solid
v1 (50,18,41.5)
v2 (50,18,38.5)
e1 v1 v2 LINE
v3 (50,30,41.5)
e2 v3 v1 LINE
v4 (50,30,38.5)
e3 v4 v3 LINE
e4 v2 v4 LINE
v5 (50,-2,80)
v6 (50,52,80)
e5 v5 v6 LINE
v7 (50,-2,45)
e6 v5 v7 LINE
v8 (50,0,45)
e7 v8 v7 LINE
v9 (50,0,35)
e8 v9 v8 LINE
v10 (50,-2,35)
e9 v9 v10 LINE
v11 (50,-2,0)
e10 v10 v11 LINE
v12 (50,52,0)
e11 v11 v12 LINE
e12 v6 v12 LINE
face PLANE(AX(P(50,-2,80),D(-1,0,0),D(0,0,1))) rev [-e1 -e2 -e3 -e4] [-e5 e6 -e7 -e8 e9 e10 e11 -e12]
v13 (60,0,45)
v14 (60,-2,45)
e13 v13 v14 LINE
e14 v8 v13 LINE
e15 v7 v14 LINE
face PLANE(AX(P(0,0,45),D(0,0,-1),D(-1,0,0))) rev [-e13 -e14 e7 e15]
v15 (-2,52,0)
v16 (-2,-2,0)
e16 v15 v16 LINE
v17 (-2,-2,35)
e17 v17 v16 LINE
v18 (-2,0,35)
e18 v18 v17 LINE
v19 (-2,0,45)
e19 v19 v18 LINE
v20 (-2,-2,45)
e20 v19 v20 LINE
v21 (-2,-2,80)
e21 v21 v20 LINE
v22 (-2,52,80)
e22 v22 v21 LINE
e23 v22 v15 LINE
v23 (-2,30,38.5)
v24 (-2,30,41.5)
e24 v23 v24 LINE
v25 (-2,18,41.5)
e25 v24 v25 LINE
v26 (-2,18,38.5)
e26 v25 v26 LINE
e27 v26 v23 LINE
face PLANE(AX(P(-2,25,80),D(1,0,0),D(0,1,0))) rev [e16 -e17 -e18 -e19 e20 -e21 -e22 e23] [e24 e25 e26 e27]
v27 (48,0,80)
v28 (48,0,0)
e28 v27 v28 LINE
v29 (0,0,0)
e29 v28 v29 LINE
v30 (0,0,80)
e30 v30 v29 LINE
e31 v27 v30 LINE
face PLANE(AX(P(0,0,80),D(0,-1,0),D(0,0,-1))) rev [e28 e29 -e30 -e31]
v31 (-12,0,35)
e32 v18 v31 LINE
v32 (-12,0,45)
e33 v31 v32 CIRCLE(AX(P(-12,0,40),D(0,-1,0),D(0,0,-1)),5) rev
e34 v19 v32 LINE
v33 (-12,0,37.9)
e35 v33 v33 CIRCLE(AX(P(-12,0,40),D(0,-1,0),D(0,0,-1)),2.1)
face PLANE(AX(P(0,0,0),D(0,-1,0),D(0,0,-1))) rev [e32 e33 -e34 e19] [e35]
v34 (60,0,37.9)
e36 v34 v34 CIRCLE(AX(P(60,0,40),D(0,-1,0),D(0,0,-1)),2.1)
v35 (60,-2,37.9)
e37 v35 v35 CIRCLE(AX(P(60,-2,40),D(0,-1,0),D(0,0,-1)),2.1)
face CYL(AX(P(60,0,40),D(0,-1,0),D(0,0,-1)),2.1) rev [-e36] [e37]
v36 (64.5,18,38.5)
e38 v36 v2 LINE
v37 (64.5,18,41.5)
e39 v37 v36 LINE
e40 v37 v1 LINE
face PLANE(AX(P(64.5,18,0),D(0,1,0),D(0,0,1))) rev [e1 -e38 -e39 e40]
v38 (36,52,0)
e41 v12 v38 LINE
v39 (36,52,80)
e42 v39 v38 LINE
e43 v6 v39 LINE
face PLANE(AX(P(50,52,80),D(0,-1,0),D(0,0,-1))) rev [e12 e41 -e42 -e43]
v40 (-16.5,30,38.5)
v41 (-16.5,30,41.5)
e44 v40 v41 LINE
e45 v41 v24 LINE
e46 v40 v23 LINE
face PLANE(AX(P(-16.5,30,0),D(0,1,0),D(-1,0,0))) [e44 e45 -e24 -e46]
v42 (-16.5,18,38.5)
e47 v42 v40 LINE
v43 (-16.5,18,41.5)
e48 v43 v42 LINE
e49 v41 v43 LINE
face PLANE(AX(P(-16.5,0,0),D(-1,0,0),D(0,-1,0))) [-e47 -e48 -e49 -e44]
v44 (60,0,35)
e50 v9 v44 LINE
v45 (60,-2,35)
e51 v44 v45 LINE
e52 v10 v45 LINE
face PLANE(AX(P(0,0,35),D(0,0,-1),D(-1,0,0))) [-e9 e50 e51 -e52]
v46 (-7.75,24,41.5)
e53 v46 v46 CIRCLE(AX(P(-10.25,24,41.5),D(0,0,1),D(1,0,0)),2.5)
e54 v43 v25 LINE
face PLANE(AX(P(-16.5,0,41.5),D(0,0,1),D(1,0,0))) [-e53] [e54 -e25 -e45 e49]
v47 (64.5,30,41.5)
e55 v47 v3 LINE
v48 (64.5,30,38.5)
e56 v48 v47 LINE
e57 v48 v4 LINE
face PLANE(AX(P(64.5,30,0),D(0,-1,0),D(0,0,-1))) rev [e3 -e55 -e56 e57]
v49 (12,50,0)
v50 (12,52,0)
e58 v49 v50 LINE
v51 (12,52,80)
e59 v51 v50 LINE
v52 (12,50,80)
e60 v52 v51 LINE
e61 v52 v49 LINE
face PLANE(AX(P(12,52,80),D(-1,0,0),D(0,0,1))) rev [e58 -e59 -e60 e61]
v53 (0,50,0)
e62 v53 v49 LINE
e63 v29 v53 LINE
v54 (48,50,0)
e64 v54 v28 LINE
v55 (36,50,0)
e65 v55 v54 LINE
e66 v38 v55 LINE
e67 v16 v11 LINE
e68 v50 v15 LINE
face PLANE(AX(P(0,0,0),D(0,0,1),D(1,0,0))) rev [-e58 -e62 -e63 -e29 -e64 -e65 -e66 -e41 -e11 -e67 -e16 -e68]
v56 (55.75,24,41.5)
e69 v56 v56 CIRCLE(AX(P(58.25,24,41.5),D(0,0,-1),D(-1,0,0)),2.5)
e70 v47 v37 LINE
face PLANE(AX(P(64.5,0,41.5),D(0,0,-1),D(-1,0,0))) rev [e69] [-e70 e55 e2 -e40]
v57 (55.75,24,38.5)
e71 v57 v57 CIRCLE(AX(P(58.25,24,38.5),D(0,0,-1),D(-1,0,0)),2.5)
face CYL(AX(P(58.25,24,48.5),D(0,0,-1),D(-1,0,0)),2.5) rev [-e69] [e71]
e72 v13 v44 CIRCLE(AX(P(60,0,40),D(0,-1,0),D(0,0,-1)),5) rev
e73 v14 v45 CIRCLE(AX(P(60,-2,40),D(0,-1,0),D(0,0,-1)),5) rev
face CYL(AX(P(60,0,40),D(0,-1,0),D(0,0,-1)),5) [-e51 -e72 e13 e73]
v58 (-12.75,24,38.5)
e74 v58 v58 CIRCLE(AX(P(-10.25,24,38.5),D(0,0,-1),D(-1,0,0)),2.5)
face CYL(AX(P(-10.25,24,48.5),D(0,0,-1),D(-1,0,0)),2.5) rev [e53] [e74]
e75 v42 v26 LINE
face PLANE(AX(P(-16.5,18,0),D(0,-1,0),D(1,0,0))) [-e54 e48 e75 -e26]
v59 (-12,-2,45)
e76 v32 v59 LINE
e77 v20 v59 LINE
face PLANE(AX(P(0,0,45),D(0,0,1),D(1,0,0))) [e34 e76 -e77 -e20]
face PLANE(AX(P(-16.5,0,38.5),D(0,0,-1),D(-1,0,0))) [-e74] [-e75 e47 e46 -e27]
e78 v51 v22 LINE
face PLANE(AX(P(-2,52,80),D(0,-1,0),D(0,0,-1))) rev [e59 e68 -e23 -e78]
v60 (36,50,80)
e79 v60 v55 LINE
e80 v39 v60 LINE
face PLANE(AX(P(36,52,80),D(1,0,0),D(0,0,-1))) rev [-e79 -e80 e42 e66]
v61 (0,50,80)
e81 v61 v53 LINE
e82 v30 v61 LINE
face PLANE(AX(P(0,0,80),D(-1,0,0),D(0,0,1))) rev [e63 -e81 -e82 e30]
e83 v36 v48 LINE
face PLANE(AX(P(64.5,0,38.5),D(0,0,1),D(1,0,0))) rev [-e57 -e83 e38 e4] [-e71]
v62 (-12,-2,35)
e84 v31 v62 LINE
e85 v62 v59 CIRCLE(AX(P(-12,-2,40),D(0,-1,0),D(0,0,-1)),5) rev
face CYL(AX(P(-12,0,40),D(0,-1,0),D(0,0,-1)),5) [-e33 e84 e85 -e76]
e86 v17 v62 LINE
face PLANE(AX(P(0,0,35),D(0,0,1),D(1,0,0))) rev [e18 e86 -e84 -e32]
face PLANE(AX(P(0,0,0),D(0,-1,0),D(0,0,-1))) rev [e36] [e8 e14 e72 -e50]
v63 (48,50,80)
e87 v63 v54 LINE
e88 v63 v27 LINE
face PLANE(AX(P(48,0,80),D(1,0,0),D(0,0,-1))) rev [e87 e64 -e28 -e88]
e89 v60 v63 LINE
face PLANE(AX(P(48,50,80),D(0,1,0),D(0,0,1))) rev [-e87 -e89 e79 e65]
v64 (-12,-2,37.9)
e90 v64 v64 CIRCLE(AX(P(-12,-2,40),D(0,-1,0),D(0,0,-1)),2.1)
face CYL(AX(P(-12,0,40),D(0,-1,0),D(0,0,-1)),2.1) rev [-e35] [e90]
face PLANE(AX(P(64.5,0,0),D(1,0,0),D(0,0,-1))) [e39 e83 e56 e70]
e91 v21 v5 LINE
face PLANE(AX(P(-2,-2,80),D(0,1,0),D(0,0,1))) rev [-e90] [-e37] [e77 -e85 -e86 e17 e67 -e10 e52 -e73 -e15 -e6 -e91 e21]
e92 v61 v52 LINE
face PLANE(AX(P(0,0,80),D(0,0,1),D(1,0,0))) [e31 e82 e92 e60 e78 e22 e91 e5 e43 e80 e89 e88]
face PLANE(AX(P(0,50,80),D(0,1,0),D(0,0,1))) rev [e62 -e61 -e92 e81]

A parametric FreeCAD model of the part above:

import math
import FreeCAD as App
import Part
import Sketcher
from FreeCAD import Vector

doc = App.newDocument("Part")
body = doc.addObject("PartDesign::Body", "Body")

# Sketch on XY plane
sketch1 = body.newObject("Sketcher::SketchObject", "Sketch")
sketch1.AttachmentSupport = (doc.getObject("XY_Plane"), [""])
sketch1.MapMode = "FlatFace"
sketch1.addGeometry(Part.LineSegment(Vector(0, 0, 0), Vector(0, 50, 0)), False)
sketch1.addGeometry(Part.LineSegment(Vector(0, 50, 0), Vector(12, 50, 0)), False)
sketch1.addGeometry(Part.LineSegment(Vector(12, 50, 0), Vector(12, 52, 0)), False)
sketch1.addGeometry(Part.LineSegment(Vector(12, 52, 0), Vector(-2, 52, 0)), False)
sketch1.addGeometry(Part.LineSegment(Vector(-2, 52, 0), Vector(-2, -2, 0)), False)
sketch1.addGeometry(Part.LineSegment(Vector(-2, -2, 0), Vector(50, -2, 0)), False)
sketch1.addGeometry(Part.LineSegment(Vector(50, -2, 0), Vector(50, 52, 0)), False)
sketch1.addGeometry(Part.LineSegment(Vector(50, 52, 0), Vector(36, 52, 0)), False)
sketch1.addGeometry(Part.LineSegment(Vector(36, 52, 0), Vector(36, 50, 0)), False)
sketch1.addGeometry(Part.LineSegment(Vector(36, 50, 0), Vector(48, 50, 0)), False)
sketch1.addGeometry(Part.LineSegment(Vector(48, 50, 0), Vector(48, 0, 0)), False)
sketch1.addGeometry(Part.LineSegment(Vector(48, 0, 0), Vector(0, 0, 0)), False)
sketch1.addConstraint(Sketcher.Constraint("Coincident", 0, 2, 1, 1))
sketch1.addConstraint(Sketcher.Constraint("Coincident", 1, 2, 2, 1))
sketch1.addConstraint(Sketcher.Constraint("Coincident", 2, 2, 3, 1))
sketch1.addConstraint(Sketcher.Constraint("Coincident", 3, 2, 4, 1))
sketch1.addConstraint(Sketcher.Constraint("Coincident", 4, 2, 5, 1))
sketch1.addConstraint(Sketcher.Constraint("Coincident", 5, 2, 6, 1))
sketch1.addConstraint(Sketcher.Constraint("Coincident", 6, 2, 7, 1))
sketch1.addConstraint(Sketcher.Constraint("Coincident", 7, 2, 8, 1))
sketch1.addConstraint(Sketcher.Constraint("Coincident", 8, 2, 9, 1))
sketch1.addConstraint(Sketcher.Constraint("Coincident", 9, 2, 10, 1))
sketch1.addConstraint(Sketcher.Constraint("Coincident", 10, 2, 11, 1))
sketch1.addConstraint(Sketcher.Constraint("Coincident", 11, 2, 0, 1))
sketch1.addConstraint(Sketcher.Constraint("Vertical", 0))
sketch1.addConstraint(Sketcher.Constraint("Horizontal", 1))
sketch1.addConstraint(Sketcher.Constraint("Vertical", 2))
sketch1.addConstraint(Sketcher.Constraint("Horizontal", 3))
sketch1.addConstraint(Sketcher.Constraint("Vertical", 4))
sketch1.addConstraint(Sketcher.Constraint("Horizontal", 5))
sketch1.addConstraint(Sketcher.Constraint("Vertical", 6))
sketch1.addConstraint(Sketcher.Constraint("Horizontal", 7))
sketch1.addConstraint(Sketcher.Constraint("Vertical", 8))
sketch1.addConstraint(Sketcher.Constraint("Horizontal", 9))
sketch1.addConstraint(Sketcher.Constraint("Vertical", 10))
sketch1.addConstraint(Sketcher.Constraint("Horizontal", 11))
sketch1.addConstraint(Sketcher.Constraint("Coincident", 11, 2, -1, 1))
sketch1.addConstraint(Sketcher.Constraint("Horizontal", 3, 2, 6, 2))
sketch1.addConstraint(Sketcher.Constraint("Horizontal", 1, 2, 8, 2))
sketch1.addConstraint(Sketcher.Constraint("Equal", 3, 7))
sketch1.addConstraint(Sketcher.Constraint("Equal", 1, 9))
sketch1.addConstraint(Sketcher.Constraint("DistanceX", 1, 1, 1, 2, 12.0))
sketch1.addConstraint(Sketcher.Constraint("DistanceX", 3, 2, 3, 1, 14.0))
sketch1.addConstraint(Sketcher.Constraint("DistanceX", 5, 1, 5, 2, 52.0))
sketch1.addConstraint(Sketcher.Constraint("DistanceY", 0, 1, 0, 2, 50.0))
sketch1.addConstraint(Sketcher.Constraint("DistanceY", 2, 1, 2, 2, 2.0))
sketch1.addConstraint(Sketcher.Constraint("DistanceY", 4, 2, 4, 1, 54.0))
pad1 = body.newObject("PartDesign::Pad", "Pad")
pad1.Profile = sketch1
pad1.Length = 80

# Sketch on XZ plane
sketch2 = body.newObject("Sketcher::SketchObject", "Sketch001")
sketch2.AttachmentSupport = (doc.getObject("XZ_Plane"), [""])
sketch2.MapMode = "FlatFace"
sketch2.AttachmentOffset = App.Placement(Vector(0, 0, 2), App.Rotation())
sketch2.addGeometry(Part.LineSegment(Vector(60, 45, 0), Vector(50, 45, 0)), False)
sketch2.addGeometry(Part.LineSegment(Vector(50, 45, 0), Vector(50, 35, 0)), False)
sketch2.addGeometry(Part.LineSegment(Vector(50, 35, 0), Vector(60, 35, 0)), False)
sketch2.addGeometry(Part.ArcOfCircle(Part.Circle(Vector(60, 40, 0), Vector(0, 0, 1), 5), math.radians(-90), math.radians(90)), False)
sketch2.addGeometry(Part.Circle(Vector(60, 40, 0), Vector(0, 0, 1), 2.1), False)
sketch2.addGeometry(Part.LineSegment(Vector(-2, 35, 0), Vector(-2, 45, 0)), False)
sketch2.addGeometry(Part.LineSegment(Vector(-2, 45, 0), Vector(-12, 45, 0)), False)
sketch2.addGeometry(Part.ArcOfCircle(Part.Circle(Vector(-12, 40, 0), Vector(0, 0, 1), 5), math.radians(90), math.radians(270)), False)
sketch2.addGeometry(Part.LineSegment(Vector(-12, 35, 0), Vector(-2, 35, 0)), False)
sketch2.addGeometry(Part.Circle(Vector(-12, 40, 0), Vector(0, 0, 1), 2.1), False)
sketch2.addConstraint(Sketcher.Constraint("Coincident", 0, 2, 1, 1))
sketch2.addConstraint(Sketcher.Constraint("Coincident", 1, 2, 2, 1))
sketch2.addConstraint(Sketcher.Constraint("Tangent", 2, 2, 3, 1))
sketch2.addConstraint(Sketcher.Constraint("Tangent", 3, 2, 0, 1))
sketch2.addConstraint(Sketcher.Constraint("Coincident", 5, 2, 6, 1))
sketch2.addConstraint(Sketcher.Constraint("Tangent", 6, 2, 7, 1))
sketch2.addConstraint(Sketcher.Constraint("Tangent", 7, 2, 8, 1))
sketch2.addConstraint(Sketcher.Constraint("Coincident", 8, 2, 5, 1))
sketch2.addConstraint(Sketcher.Constraint("Horizontal", 0))
sketch2.addConstraint(Sketcher.Constraint("Vertical", 1))
sketch2.addConstraint(Sketcher.Constraint("Horizontal", 2))
sketch2.addConstraint(Sketcher.Constraint("Vertical", 5))
sketch2.addConstraint(Sketcher.Constraint("Horizontal", 6))
sketch2.addConstraint(Sketcher.Constraint("Horizontal", 8))
sketch2.addConstraint(Sketcher.Constraint("Coincident", 4, 3, 3, 3))
sketch2.addConstraint(Sketcher.Constraint("Coincident", 9, 3, 7, 3))
sketch2.addConstraint(Sketcher.Constraint("Equal", 3, 7))
sketch2.addConstraint(Sketcher.Constraint("Equal", 4, 9))
sketch2.addConstraint(Sketcher.Constraint("Horizontal", 4, 3, 7, 3))
sketch2.addConstraint(Sketcher.Constraint("Equal", 2, 6))
sketch2.addConstraint(Sketcher.Constraint("Equal", 8, 1))
sketch2.addConstraint(Sketcher.Constraint("Radius", 3, 5.0))
sketch2.addConstraint(Sketcher.Constraint("Diameter", 4, 4.2))
sketch2.addConstraint(Sketcher.Constraint("DistanceX", -1, 1, 3, 3, 60.0))
sketch2.addConstraint(Sketcher.Constraint("DistanceY", -1, 1, 3, 3, 40.0))
sketch2.addConstraint(Sketcher.Constraint("DistanceX", 7, 3, -1, 1, 12.0))
pad2 = body.newObject("PartDesign::Pad", "Pad001")
pad2.Profile = sketch2
pad2.Length = 2
pad2.Reversed = True

# Sketch on YZ plane
sketch3 = body.newObject("Sketcher::SketchObject", "Sketch002")
sketch3.AttachmentSupport = (doc.getObject("YZ_Plane"), [""])
sketch3.MapMode = "FlatFace"
sketch3.AttachmentOffset = App.Placement(Vector(0, 0, -2), App.Rotation())
sketch3.addGeometry(Part.LineSegment(Vector(30, 38.5, 0), Vector(18, 38.5, 0)), False)
sketch3.addGeometry(Part.LineSegment(Vector(18, 38.5, 0), Vector(18, 41.5, 0)), False)
sketch3.addGeometry(Part.LineSegment(Vector(18, 41.5, 0), Vector(30, 41.5, 0)), False)
sketch3.addGeometry(Part.LineSegment(Vector(30, 41.5, 0), Vector(30, 38.5, 0)), False)
sketch3.addConstraint(Sketcher.Constraint("Coincident", 0, 2, 1, 1))
sketch3.addConstraint(Sketcher.Constraint("Coincident", 1, 2, 2, 1))
sketch3.addConstraint(Sketcher.Constraint("Coincident", 2, 2, 3, 1))
sketch3.addConstraint(Sketcher.Constraint("Coincident", 3, 2, 0, 1))
sketch3.addConstraint(Sketcher.Constraint("Horizontal", 0))
sketch3.addConstraint(Sketcher.Constraint("Vertical", 1))
sketch3.addConstraint(Sketcher.Constraint("Horizontal", 2))
sketch3.addConstraint(Sketcher.Constraint("Vertical", 3))
sketch3.addConstraint(Sketcher.Constraint("DistanceX", 0, 2, 0, 1, 12.0))
sketch3.addConstraint(Sketcher.Constraint("DistanceY", 1, 1, 1, 2, 3.0))
sketch3.addConstraint(Sketcher.Constraint("DistanceX", -1, 1, 0, 2, 18.0))
sketch3.addConstraint(Sketcher.Constraint("DistanceY", -1, 1, 0, 2, 38.5))
pad3 = body.newObject("PartDesign::Pad", "Pad002")
pad3.Profile = sketch3
pad3.Length = 14.5
pad3.Reversed = True

# Sketch on YZ plane
sketch4 = body.newObject("Sketcher::SketchObject", "Sketch003")
sketch4.AttachmentSupport = (doc.getObject("YZ_Plane"), [""])
sketch4.MapMode = "FlatFace"
sketch4.AttachmentOffset = App.Placement(Vector(0, 0, 50), App.Rotation())
sketch4.addGeometry(Part.LineSegment(Vector(30, 41.5, 0), Vector(18, 41.5, 0)), False)
sketch4.addGeometry(Part.LineSegment(Vector(18, 41.5, 0), Vector(18, 38.5, 0)), False)
sketch4.addGeometry(Part.LineSegment(Vector(18, 38.5, 0), Vector(30, 38.5, 0)), False)
sketch4.addGeometry(Part.LineSegment(Vector(30, 38.5, 0), Vector(30, 41.5, 0)), False)
sketch4.addConstraint(Sketcher.Constraint("Coincident", 0, 2, 1, 1))
sketch4.addConstraint(Sketcher.Constraint("Coincident", 1, 2, 2, 1))
sketch4.addConstraint(Sketcher.Constraint("Coincident", 2, 2, 3, 1))
sketch4.addConstraint(Sketcher.Constraint("Coincident", 3, 2, 0, 1))
sketch4.addConstraint(Sketcher.Constraint("Horizontal", 0))
sketch4.addConstraint(Sketcher.Constraint("Vertical", 1))
sketch4.addConstraint(Sketcher.Constraint("Horizontal", 2))
sketch4.addConstraint(Sketcher.Constraint("Vertical", 3))
sketch4.addConstraint(Sketcher.Constraint("DistanceX", 0, 2, 0, 1, 12.0))
sketch4.addConstraint(Sketcher.Constraint("DistanceY", 1, 2, 1, 1, 3.0))
sketch4.addConstraint(Sketcher.Constraint("DistanceX", -1, 1, 0, 2, 18.0))
sketch4.addConstraint(Sketcher.Constraint("DistanceY", -1, 1, 0, 2, 41.5))
pad4 = body.newObject("PartDesign::Pad", "Pad003")
pad4.Profile = sketch4
pad4.Length = 14.5

# Sketch on XY plane
sketch5 = body.newObject("Sketcher::SketchObject", "Sketch004")
sketch5.AttachmentSupport = (doc.getObject("XY_Plane"), [""])
sketch5.MapMode = "FlatFace"
sketch5.AttachmentOffset = App.Placement(Vector(0, 0, 38.5), App.Rotation())
sketch5.addGeometry(Part.Circle(Vector(58.2, 24, 0), Vector(0, 0, 1), 2.5), False)
sketch5.addGeometry(Part.Circle(Vector(-10.2, 24, 0), Vector(0, 0, 1), 2.5), False)
sketch5.addConstraint(Sketcher.Constraint("Equal", 0, 1))
sketch5.addConstraint(Sketcher.Constraint("Horizontal", 0, 3, 1, 3))
sketch5.addConstraint(Sketcher.Constraint("Diameter", 0, 5.0))
sketch5.addConstraint(Sketcher.Constraint("DistanceY", -1, 1, 0, 3, 24.0))
sketch5.addConstraint(Sketcher.Constraint("DistanceX", 1, 3, 0, 3, 68.5))
sketch5.addConstraint(Sketcher.Constraint("DistanceX", -1, 1, 0, 3, 58.25))
pocket1 = body.newObject("PartDesign::Pocket", "Pocket")
pocket1.Profile = sketch5
pocket1.Length = 10
pocket1.Reversed = True

doc.recompute()
